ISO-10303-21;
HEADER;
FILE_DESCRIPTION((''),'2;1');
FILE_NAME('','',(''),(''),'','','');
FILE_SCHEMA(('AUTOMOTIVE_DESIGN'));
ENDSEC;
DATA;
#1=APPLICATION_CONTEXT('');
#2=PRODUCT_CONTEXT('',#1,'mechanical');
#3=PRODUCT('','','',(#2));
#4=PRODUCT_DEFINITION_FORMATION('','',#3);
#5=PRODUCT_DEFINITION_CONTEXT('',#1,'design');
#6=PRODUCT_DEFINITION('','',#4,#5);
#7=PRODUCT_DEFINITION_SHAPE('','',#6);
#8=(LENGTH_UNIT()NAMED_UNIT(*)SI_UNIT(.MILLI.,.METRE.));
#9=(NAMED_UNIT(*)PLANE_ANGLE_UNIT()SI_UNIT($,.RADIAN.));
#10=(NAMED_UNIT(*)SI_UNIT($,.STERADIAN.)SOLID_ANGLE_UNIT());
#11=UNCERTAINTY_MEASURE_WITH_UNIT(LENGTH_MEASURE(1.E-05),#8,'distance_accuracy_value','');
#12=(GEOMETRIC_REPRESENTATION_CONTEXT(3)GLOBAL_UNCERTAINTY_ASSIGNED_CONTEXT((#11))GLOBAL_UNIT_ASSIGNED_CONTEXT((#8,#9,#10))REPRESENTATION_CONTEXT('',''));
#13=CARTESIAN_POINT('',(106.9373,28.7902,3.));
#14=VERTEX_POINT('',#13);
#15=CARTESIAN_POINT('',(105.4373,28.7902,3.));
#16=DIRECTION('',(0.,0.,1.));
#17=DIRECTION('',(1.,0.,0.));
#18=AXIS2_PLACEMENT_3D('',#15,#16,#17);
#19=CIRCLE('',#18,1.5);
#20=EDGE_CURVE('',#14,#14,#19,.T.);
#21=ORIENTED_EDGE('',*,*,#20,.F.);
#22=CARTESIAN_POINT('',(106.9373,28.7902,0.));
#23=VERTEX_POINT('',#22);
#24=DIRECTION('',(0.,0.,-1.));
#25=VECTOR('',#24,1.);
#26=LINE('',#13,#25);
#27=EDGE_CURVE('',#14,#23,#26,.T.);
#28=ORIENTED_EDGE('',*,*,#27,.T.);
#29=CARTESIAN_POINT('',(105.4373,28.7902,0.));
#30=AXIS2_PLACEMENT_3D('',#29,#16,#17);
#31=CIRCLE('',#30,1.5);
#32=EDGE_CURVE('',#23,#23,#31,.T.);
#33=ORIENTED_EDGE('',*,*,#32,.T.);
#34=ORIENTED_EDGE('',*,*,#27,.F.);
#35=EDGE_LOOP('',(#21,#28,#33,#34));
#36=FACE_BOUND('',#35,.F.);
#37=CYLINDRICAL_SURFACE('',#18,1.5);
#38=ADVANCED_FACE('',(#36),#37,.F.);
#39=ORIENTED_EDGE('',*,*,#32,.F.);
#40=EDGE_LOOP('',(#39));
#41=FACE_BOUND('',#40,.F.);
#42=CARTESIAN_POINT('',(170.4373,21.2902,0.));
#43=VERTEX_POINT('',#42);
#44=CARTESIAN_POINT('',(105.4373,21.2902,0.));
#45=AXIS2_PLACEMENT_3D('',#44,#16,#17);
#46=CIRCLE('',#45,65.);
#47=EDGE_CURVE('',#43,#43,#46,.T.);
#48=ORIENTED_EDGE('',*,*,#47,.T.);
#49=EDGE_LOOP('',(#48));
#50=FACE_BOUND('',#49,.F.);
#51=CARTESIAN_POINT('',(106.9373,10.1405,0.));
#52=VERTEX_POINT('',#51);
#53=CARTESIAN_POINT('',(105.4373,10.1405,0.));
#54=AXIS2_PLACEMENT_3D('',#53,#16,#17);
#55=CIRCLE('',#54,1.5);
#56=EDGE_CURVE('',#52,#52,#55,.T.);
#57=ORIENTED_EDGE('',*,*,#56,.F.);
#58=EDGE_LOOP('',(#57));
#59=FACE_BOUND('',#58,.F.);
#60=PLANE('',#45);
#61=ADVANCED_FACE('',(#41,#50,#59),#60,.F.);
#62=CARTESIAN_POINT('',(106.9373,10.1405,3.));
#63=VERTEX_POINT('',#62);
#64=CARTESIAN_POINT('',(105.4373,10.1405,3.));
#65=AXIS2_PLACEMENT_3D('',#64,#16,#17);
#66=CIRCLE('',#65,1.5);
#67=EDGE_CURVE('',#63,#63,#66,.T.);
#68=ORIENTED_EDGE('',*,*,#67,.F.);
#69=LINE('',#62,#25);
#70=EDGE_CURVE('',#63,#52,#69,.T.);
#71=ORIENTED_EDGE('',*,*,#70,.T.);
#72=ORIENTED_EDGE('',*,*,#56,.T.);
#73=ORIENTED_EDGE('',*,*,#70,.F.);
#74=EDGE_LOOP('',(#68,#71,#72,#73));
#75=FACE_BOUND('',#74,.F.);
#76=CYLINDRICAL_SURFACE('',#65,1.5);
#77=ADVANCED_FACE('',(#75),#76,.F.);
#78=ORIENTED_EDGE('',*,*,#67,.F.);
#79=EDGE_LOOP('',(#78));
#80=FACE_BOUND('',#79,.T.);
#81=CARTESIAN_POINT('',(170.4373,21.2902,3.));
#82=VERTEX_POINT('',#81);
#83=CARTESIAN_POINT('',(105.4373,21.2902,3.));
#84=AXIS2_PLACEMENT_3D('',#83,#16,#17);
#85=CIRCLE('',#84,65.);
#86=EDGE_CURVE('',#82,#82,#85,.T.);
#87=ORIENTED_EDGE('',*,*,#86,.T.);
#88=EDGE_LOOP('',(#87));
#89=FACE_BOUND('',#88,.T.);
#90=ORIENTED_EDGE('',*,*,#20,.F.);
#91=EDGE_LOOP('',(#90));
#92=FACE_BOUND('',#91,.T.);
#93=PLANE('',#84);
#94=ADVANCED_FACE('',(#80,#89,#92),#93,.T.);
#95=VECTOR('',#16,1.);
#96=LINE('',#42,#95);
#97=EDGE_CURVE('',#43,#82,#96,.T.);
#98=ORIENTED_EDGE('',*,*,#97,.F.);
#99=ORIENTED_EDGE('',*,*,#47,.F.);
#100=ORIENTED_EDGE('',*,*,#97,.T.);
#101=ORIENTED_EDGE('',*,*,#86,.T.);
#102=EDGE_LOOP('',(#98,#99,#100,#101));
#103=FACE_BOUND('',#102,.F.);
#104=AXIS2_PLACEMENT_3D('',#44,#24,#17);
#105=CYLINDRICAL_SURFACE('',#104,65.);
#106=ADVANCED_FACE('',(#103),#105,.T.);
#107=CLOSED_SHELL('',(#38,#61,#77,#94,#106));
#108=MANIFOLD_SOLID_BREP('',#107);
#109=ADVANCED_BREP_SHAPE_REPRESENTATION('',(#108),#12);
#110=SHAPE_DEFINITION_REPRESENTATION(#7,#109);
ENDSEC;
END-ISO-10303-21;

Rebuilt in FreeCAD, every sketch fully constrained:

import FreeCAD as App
import Part
import Sketcher
from FreeCAD import Vector
Q = App.Units.Quantity

doc = App.newDocument("Part")
body = doc.addObject("PartDesign::Body", "Body")

# Sketch on XY plane
sketch1 = body.newObject("Sketcher::SketchObject", "Sketch")
sketch1.AttachmentSupport = (doc.getObject("XY_Plane"), [""])
sketch1.MapMode = "FlatFace"
sketch1.addGeometry(Part.Circle(Vector(105, 21, 0), Vector(0, 0, 1), 65), False)
sketch1.addConstraint([
    Sketcher.Constraint("Diameter", 0, Q("130 mm")),
    Sketcher.Constraint("DistanceX", -1, 1, 0, 3, Q("105.4373 mm")),
    Sketcher.Constraint("DistanceY", -1, 1, 0, 3, Q("21.2902 mm")),
])
pad1 = body.newObject("PartDesign::Pad", "Pad")
pad1.Profile = sketch1
pad1.Length = 3

# Sketch on XY plane
sketch2 = body.newObject("Sketcher::SketchObject", "Sketch001")
sketch2.AttachmentSupport = (doc.getObject("XY_Plane"), [""])
sketch2.MapMode = "FlatFace"
sketch2.AttachmentOffset = App.Placement(Vector(0, 0, 3), App.Rotation())
sketch2.addGeometry([
    Part.Circle(Vector(105.4, 28.8, 0), Vector(0, 0, 1), 1.5),
    Part.Circle(Vector(105.4, 10.1, 0), Vector(0, 0, 1), 1.5),
], False)
sketch2.addConstraint([
    Sketcher.Constraint("Equal", 0, 1),
    Sketcher.Constraint("Vertical", 0, 3, 1, 3),
    Sketcher.Constraint("Diameter", 0, Q("3 mm")),
    Sketcher.Constraint("DistanceX", -1, 1, 0, 3, Q("105.4373 mm")),
    Sketcher.Constraint("DistanceY", -1, 1, 0, 3, Q("28.7902 mm")),
    Sketcher.Constraint("DistanceY", -1, 1, 1, 3, Q("10.1405 mm")),
])
pocket1 = body.newObject("PartDesign::Pocket", "Pocket")
pocket1.Profile = sketch2
pocket1.Type = "ThroughAll"

doc.recompute()
